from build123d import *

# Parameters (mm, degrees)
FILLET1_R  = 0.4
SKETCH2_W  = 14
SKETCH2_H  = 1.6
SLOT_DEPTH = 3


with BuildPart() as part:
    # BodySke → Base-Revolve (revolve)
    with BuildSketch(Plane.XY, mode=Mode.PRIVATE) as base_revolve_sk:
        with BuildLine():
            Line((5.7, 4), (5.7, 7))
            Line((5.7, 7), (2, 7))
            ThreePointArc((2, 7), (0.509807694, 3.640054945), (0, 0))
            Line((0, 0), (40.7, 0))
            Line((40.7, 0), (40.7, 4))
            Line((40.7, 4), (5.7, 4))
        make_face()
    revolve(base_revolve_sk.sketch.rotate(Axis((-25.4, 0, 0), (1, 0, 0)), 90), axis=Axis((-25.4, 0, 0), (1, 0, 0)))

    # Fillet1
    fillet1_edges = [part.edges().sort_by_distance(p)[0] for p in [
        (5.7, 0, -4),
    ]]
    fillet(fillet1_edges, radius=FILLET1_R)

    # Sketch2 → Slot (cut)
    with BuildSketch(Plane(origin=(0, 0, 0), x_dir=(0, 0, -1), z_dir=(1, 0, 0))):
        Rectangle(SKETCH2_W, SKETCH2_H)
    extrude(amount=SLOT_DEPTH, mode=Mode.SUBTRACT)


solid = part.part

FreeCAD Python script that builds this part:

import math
import FreeCAD as App
import Part
import Sketcher

V = App.Vector


def edges_at(feature, points):
    """Names of the edges that pass closest to the given points."""
    edges = feature.Shape.Edges
    near = lambda p: min(range(len(edges)), key=lambda i: edges[i].distToShape(Part.Vertex(*p))[0])
    return sorted({f"Edge{near(p) + 1}" for p in points})


def add_polygon(sketch, points):
    """Adds a closed chain of lines whose ends are joined by coincident constraints."""
    first, n = sketch.GeometryCount, len(points)
    for a, b in zip(points, points[1:] + points[:1]):
        sketch.addGeometry(Part.LineSegment(App.Vector(*a, 0), App.Vector(*b, 0)), False)
    for i in range(n):
        sketch.addConstraint(Sketcher.Constraint("Coincident", first + i, 2, first + (i + 1) % n, 1))

doc = App.newDocument("Part")
params = doc.addObject("Spreadsheet::Sheet", "Params")
for row, (alias, value) in enumerate([
    ("sketch1_width", "35 mm"),
    ("sketch1_height", "3 mm"),
    ("sketch1_height2", "4 mm"),
    ("sketch1_radius", "13.25 mm"),
    ("sketch1_width2", "3.7 mm"),
    ("revolution_angle", "360 deg"),
    ("fillet_radius", "0.4 mm"),
    ("sketch2_height", "14 mm"),
    ("sketch2_width", "1.6 mm"),
    ("pocket1_length", "3 mm"),
], start=1):
    params.set(f"A{row}", alias)
    params.set(f"B{row}", "=" + value)
    params.setAlias(f"B{row}", alias)

body = doc.addObject("PartDesign::Body", "Body")

# Sketch on XY plane
sketch1 = doc.addObject("Sketcher::SketchObject", "Sketch")
body.addObject(sketch1)
sketch1.AttachmentSupport = (doc.XY_Plane, [""])
sketch1.MapMode = "FlatFace"
sketch1.addGeometry(Part.LineSegment(V(5.7, 4, 0), V(5.7, 7, 0)), False)
sketch1.addGeometry(Part.LineSegment(V(5.7, 7, 0), V(2, 7, 0)), False)
sketch1.addGeometry(Part.ArcOfCircle(Part.Circle(V(13.25, 0, 0), V(0, 0, 1), 13.25), math.radians(148.109208), math.radians(180)), False)
sketch1.addGeometry(Part.LineSegment(V(0, 0, 0), V(40.7, 0, 0)), False)
sketch1.addGeometry(Part.LineSegment(V(40.7, 0, 0), V(40.7, 4, 0)), False)
sketch1.addGeometry(Part.LineSegment(V(40.7, 4, 0), V(5.7, 4, 0)), False)
sketch1.addConstraint(Sketcher.Constraint("Coincident", 0, 2, 1, 1))
sketch1.addConstraint(Sketcher.Constraint("Coincident", 1, 2, 2, 1))
sketch1.addConstraint(Sketcher.Constraint("Coincident", 2, 2, 3, 1))
sketch1.addConstraint(Sketcher.Constraint("Coincident", 3, 2, 4, 1))
sketch1.addConstraint(Sketcher.Constraint("Coincident", 4, 2, 5, 1))
sketch1.addConstraint(Sketcher.Constraint("Coincident", 5, 2, 0, 1))
sketch1.addConstraint(Sketcher.Constraint("Vertical", 0))
sketch1.addConstraint(Sketcher.Constraint("Horizontal", 1))
sketch1.addConstraint(Sketcher.Constraint("Horizontal", 3))
sketch1.addConstraint(Sketcher.Constraint("Vertical", 4))
sketch1.addConstraint(Sketcher.Constraint("Horizontal", 5))
sketch1.addConstraint(Sketcher.Constraint("Coincident", 2, 2, -1, 1))
sketch1.addConstraint(Sketcher.Constraint("PointOnObject", 2, 3, -1))
sketch1.addConstraint(Sketcher.Constraint("DistanceX", 5, 2, 5, 1, 35.0))
sketch1.addConstraint(Sketcher.Constraint("DistanceY", 0, 1, 0, 2, 3.0))
sketch1.addConstraint(Sketcher.Constraint("DistanceY", 4, 1, 4, 2, 4.0))
sketch1.addConstraint(Sketcher.Constraint("Radius", 2, 13.25))
sketch1.addConstraint(Sketcher.Constraint("DistanceX", 1, 2, 1, 1, 3.7))
sketch1.setExpression("Constraints[13]", "Params.sketch1_width")
sketch1.setExpression("Constraints[14]", "Params.sketch1_height")
sketch1.setExpression("Constraints[15]", "Params.sketch1_height2")
sketch1.setExpression("Constraints[16]", "Params.sketch1_radius")
sketch1.setExpression("Constraints[17]", "Params.sketch1_width2")
revolution = doc.addObject("PartDesign::Revolution", "Revolution")
body.addObject(revolution)
revolution.Profile = sketch1
revolution.ReferenceAxis = (sketch1, ["H_Axis"])
revolution.setExpression("Angle", "Params.revolution_angle")
doc.recompute()

fillet = doc.addObject("PartDesign::Fillet", "Fillet")
body.addObject(fillet)
fillet.Base = (revolution, edges_at(revolution, [(5.7, 0, -4)]))
fillet.setExpression("Radius", "Params.fillet_radius")

# Sketch on YZ plane
sketch2 = doc.addObject("Sketcher::SketchObject", "Sketch001")
body.addObject(sketch2)
sketch2.AttachmentSupport = (doc.YZ_Plane, [""])
sketch2.MapMode = "FlatFace"
add_polygon(sketch2, [(0.8, 7), (-0.8, 7), (-0.8, -7), (0.8, -7)])  # lines 0-3
sketch2.addConstraint(Sketcher.Constraint("Horizontal", 0))
sketch2.addConstraint(Sketcher.Constraint("Vertical", 1))
sketch2.addConstraint(Sketcher.Constraint("Horizontal", 2))
sketch2.addConstraint(Sketcher.Constraint("Vertical", 3))
sketch2.addConstraint(Sketcher.Constraint("Symmetric", 0, 2, 2, 2, -1, 1))
sketch2.addConstraint(Sketcher.Constraint("DistanceY", 1, 2, 1, 1, 14.0))
sketch2.addConstraint(Sketcher.Constraint("DistanceX", 0, 2, 0, 1, 1.6))
sketch2.setExpression("Constraints[9]", "Params.sketch2_height")
sketch2.setExpression("Constraints[10]", "Params.sketch2_width")
pocket1 = doc.addObject("PartDesign::Pocket", "Pocket")
body.addObject(pocket1)
pocket1.Profile = sketch2
pocket1.setExpression("Length", "Params.pocket1_length")
pocket1.Reversed = True

doc.recompute()
